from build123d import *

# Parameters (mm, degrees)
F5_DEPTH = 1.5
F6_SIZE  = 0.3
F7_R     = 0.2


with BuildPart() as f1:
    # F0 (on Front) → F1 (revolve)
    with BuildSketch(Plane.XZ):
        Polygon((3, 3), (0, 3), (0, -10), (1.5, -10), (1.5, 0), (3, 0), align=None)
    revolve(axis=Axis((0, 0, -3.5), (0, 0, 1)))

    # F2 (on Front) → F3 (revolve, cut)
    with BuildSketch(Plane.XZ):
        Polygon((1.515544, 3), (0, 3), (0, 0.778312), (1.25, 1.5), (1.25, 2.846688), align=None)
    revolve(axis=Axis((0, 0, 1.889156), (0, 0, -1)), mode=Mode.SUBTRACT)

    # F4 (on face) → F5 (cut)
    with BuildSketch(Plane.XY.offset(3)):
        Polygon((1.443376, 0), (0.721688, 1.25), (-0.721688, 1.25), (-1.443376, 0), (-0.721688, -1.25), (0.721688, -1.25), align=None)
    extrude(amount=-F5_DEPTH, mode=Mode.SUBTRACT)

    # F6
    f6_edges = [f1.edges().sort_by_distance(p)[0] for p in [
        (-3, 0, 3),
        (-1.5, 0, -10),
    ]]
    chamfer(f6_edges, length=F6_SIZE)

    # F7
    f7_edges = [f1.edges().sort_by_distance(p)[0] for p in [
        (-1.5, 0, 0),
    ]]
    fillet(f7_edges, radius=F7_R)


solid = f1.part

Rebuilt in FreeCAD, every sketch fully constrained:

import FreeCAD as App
import Part
import Sketcher

V = App.Vector
Q = App.Units.Quantity


def edges_at(feature, points):
    """Names of the edges that pass closest to the given points."""
    edges = feature.Shape.Edges
    near = lambda p: min(range(len(edges)), key=lambda i: edges[i].distToShape(Part.Vertex(*p))[0])
    return sorted({f"Edge{near(p) + 1}" for p in points})


def add_polygon(sketch, points):
    """Adds a closed chain of lines whose ends are joined by coincident constraints."""
    first, n = sketch.GeometryCount, len(points)
    for a, b in zip(points, points[1:] + points[:1]):
        sketch.addGeometry(Part.LineSegment(App.Vector(*a, 0), App.Vector(*b, 0)), False)
    for i in range(n):
        sketch.addConstraint(Sketcher.Constraint("Coincident", first + i, 2, first + (i + 1) % n, 1))

doc = App.newDocument("Part")
body = doc.addObject("PartDesign::Body", "Body")

# Sketch on XZ plane
sketch1 = body.newObject("Sketcher::SketchObject", "Sketch")
sketch1.AttachmentSupport = (doc.getObject("XZ_Plane"), [""])
sketch1.MapMode = "FlatFace"
add_polygon(sketch1, [(3, 3), (0, 3), (0, -10), (1.5, -10), (1.5, 0), (3, 0)])  # lines 0-5
sketch1.addConstraint(Sketcher.Constraint("Horizontal", 0))
sketch1.addConstraint(Sketcher.Constraint("Vertical", 1))
sketch1.addConstraint(Sketcher.Constraint("Horizontal", 2))
sketch1.addConstraint(Sketcher.Constraint("Vertical", 3))
sketch1.addConstraint(Sketcher.Constraint("Horizontal", 4))
sketch1.addConstraint(Sketcher.Constraint("Vertical", 5))
sketch1.addConstraint(Sketcher.Constraint("PointOnObject", 0, 2, -2))
sketch1.addConstraint(Sketcher.Constraint("PointOnObject", 3, 2, -1))
sketch1.addConstraint(Sketcher.Constraint("Equal", 2, 4))
sketch1.addConstraint(Sketcher.Constraint("Equal", 0, 5))
sketch1.addConstraint(Sketcher.Constraint("DistanceX", 0, 2, 0, 1, 3.0))
sketch1.addConstraint(Sketcher.Constraint("DistanceY", 1, 2, 1, 1, 13.0))
revolution = body.newObject("PartDesign::Revolution", "Revolution")
revolution.Profile = sketch1
revolution.ReferenceAxis = (sketch1, ["V_Axis"])
revolution.Angle = 360

# Sketch on XZ plane
sketch2 = body.newObject("Sketcher::SketchObject", "Sketch001")
sketch2.AttachmentSupport = (doc.getObject("XZ_Plane"), [""])
sketch2.MapMode = "FlatFace"
add_polygon(sketch2, [(1.515544, 3), (0, 3), (0, 0.778312), (1.25, 1.5), (1.25, 2.846688)])  # lines 0-4
sketch2.addConstraint(Sketcher.Constraint("Horizontal", 0))
sketch2.addConstraint(Sketcher.Constraint("Vertical", 1))
sketch2.addConstraint(Sketcher.Constraint("Vertical", 3))
sketch2.addConstraint(Sketcher.Constraint("PointOnObject", 0, 2, -2))
sketch2.addConstraint(Sketcher.Constraint("Parallel", 2, 4))
sketch2.addConstraint(Sketcher.Constraint("Angle", 2, Q("30.000006 deg")))
sketch2.addConstraint(Sketcher.Constraint("DistanceY", -1, 1, 0, 2, 3.0))
sketch2.addConstraint(Sketcher.Constraint("DistanceY", -1, 1, 2, 2, 1.5))
sketch2.addConstraint(Sketcher.Constraint("DistanceX", -1, 1, 2, 2, 1.25))
sketch2.addConstraint(Sketcher.Constraint("DistanceX", 0, 2, 0, 1, 1.515544))
groove = body.newObject("PartDesign::Groove", "Groove")
groove.Profile = sketch2
groove.ReferenceAxis = (sketch2, ["V_Axis"])
groove.Angle = 360

# Sketch on XY plane
sketch3 = body.newObject("Sketcher::SketchObject", "Sketch002")
sketch3.AttachmentSupport = (doc.getObject("XY_Plane"), [""])
sketch3.MapMode = "FlatFace"
sketch3.AttachmentOffset = App.Placement(V(0, 0, 3), App.Rotation())
add_polygon(sketch3, [(1.443376, 0), (0.721688, 1.25), (-0.721688, 1.25), (-1.443376, 0), (-0.721688, -1.25), (0.721688, -1.25)])  # lines 0-5
sketch3.addConstraint(Sketcher.Constraint("Horizontal", 1))
sketch3.addConstraint(Sketcher.Constraint("Horizontal", 4))
sketch3.addConstraint(Sketcher.Constraint("Symmetric", 0, 2, 3, 2, -1, 1))
sketch3.addConstraint(Sketcher.Constraint("Symmetric", 2, 2, 5, 2, -1, 1))
sketch3.addConstraint(Sketcher.Constraint("PointOnObject", 2, 2, -1))
sketch3.addConstraint(Sketcher.Constraint("Parallel", 2, 5))
sketch3.addConstraint(Sketcher.Constraint("Vertical", 1, 2, 3, 2))
sketch3.addConstraint(Sketcher.Constraint("Angle", 0, Q("120.000006 deg")))
sketch3.addConstraint(Sketcher.Constraint("DistanceY", 3, 2, 1, 2, 2.5))
sketch3.addConstraint(Sketcher.Constraint("DistanceX", 1, 2, 1, 1, 1.443376))
pocket1 = body.newObject("PartDesign::Pocket", "Pocket")
pocket1.Profile = sketch3
pocket1.Length = 1.5
doc.recompute()

chamfer = body.newObject("PartDesign::Chamfer", "Chamfer")
chamfer.Base = (pocket1, edges_at(pocket1, [(-3, 0, 3), (-1.5, 0, -10)]))
chamfer.Size = 0.3
doc.recompute()

fillet = body.newObject("PartDesign::Fillet", "Fillet")
fillet.Base = (chamfer, edges_at(chamfer, [(-1.5, 0, 0)]))
fillet.Radius = 0.2

doc.recompute()
